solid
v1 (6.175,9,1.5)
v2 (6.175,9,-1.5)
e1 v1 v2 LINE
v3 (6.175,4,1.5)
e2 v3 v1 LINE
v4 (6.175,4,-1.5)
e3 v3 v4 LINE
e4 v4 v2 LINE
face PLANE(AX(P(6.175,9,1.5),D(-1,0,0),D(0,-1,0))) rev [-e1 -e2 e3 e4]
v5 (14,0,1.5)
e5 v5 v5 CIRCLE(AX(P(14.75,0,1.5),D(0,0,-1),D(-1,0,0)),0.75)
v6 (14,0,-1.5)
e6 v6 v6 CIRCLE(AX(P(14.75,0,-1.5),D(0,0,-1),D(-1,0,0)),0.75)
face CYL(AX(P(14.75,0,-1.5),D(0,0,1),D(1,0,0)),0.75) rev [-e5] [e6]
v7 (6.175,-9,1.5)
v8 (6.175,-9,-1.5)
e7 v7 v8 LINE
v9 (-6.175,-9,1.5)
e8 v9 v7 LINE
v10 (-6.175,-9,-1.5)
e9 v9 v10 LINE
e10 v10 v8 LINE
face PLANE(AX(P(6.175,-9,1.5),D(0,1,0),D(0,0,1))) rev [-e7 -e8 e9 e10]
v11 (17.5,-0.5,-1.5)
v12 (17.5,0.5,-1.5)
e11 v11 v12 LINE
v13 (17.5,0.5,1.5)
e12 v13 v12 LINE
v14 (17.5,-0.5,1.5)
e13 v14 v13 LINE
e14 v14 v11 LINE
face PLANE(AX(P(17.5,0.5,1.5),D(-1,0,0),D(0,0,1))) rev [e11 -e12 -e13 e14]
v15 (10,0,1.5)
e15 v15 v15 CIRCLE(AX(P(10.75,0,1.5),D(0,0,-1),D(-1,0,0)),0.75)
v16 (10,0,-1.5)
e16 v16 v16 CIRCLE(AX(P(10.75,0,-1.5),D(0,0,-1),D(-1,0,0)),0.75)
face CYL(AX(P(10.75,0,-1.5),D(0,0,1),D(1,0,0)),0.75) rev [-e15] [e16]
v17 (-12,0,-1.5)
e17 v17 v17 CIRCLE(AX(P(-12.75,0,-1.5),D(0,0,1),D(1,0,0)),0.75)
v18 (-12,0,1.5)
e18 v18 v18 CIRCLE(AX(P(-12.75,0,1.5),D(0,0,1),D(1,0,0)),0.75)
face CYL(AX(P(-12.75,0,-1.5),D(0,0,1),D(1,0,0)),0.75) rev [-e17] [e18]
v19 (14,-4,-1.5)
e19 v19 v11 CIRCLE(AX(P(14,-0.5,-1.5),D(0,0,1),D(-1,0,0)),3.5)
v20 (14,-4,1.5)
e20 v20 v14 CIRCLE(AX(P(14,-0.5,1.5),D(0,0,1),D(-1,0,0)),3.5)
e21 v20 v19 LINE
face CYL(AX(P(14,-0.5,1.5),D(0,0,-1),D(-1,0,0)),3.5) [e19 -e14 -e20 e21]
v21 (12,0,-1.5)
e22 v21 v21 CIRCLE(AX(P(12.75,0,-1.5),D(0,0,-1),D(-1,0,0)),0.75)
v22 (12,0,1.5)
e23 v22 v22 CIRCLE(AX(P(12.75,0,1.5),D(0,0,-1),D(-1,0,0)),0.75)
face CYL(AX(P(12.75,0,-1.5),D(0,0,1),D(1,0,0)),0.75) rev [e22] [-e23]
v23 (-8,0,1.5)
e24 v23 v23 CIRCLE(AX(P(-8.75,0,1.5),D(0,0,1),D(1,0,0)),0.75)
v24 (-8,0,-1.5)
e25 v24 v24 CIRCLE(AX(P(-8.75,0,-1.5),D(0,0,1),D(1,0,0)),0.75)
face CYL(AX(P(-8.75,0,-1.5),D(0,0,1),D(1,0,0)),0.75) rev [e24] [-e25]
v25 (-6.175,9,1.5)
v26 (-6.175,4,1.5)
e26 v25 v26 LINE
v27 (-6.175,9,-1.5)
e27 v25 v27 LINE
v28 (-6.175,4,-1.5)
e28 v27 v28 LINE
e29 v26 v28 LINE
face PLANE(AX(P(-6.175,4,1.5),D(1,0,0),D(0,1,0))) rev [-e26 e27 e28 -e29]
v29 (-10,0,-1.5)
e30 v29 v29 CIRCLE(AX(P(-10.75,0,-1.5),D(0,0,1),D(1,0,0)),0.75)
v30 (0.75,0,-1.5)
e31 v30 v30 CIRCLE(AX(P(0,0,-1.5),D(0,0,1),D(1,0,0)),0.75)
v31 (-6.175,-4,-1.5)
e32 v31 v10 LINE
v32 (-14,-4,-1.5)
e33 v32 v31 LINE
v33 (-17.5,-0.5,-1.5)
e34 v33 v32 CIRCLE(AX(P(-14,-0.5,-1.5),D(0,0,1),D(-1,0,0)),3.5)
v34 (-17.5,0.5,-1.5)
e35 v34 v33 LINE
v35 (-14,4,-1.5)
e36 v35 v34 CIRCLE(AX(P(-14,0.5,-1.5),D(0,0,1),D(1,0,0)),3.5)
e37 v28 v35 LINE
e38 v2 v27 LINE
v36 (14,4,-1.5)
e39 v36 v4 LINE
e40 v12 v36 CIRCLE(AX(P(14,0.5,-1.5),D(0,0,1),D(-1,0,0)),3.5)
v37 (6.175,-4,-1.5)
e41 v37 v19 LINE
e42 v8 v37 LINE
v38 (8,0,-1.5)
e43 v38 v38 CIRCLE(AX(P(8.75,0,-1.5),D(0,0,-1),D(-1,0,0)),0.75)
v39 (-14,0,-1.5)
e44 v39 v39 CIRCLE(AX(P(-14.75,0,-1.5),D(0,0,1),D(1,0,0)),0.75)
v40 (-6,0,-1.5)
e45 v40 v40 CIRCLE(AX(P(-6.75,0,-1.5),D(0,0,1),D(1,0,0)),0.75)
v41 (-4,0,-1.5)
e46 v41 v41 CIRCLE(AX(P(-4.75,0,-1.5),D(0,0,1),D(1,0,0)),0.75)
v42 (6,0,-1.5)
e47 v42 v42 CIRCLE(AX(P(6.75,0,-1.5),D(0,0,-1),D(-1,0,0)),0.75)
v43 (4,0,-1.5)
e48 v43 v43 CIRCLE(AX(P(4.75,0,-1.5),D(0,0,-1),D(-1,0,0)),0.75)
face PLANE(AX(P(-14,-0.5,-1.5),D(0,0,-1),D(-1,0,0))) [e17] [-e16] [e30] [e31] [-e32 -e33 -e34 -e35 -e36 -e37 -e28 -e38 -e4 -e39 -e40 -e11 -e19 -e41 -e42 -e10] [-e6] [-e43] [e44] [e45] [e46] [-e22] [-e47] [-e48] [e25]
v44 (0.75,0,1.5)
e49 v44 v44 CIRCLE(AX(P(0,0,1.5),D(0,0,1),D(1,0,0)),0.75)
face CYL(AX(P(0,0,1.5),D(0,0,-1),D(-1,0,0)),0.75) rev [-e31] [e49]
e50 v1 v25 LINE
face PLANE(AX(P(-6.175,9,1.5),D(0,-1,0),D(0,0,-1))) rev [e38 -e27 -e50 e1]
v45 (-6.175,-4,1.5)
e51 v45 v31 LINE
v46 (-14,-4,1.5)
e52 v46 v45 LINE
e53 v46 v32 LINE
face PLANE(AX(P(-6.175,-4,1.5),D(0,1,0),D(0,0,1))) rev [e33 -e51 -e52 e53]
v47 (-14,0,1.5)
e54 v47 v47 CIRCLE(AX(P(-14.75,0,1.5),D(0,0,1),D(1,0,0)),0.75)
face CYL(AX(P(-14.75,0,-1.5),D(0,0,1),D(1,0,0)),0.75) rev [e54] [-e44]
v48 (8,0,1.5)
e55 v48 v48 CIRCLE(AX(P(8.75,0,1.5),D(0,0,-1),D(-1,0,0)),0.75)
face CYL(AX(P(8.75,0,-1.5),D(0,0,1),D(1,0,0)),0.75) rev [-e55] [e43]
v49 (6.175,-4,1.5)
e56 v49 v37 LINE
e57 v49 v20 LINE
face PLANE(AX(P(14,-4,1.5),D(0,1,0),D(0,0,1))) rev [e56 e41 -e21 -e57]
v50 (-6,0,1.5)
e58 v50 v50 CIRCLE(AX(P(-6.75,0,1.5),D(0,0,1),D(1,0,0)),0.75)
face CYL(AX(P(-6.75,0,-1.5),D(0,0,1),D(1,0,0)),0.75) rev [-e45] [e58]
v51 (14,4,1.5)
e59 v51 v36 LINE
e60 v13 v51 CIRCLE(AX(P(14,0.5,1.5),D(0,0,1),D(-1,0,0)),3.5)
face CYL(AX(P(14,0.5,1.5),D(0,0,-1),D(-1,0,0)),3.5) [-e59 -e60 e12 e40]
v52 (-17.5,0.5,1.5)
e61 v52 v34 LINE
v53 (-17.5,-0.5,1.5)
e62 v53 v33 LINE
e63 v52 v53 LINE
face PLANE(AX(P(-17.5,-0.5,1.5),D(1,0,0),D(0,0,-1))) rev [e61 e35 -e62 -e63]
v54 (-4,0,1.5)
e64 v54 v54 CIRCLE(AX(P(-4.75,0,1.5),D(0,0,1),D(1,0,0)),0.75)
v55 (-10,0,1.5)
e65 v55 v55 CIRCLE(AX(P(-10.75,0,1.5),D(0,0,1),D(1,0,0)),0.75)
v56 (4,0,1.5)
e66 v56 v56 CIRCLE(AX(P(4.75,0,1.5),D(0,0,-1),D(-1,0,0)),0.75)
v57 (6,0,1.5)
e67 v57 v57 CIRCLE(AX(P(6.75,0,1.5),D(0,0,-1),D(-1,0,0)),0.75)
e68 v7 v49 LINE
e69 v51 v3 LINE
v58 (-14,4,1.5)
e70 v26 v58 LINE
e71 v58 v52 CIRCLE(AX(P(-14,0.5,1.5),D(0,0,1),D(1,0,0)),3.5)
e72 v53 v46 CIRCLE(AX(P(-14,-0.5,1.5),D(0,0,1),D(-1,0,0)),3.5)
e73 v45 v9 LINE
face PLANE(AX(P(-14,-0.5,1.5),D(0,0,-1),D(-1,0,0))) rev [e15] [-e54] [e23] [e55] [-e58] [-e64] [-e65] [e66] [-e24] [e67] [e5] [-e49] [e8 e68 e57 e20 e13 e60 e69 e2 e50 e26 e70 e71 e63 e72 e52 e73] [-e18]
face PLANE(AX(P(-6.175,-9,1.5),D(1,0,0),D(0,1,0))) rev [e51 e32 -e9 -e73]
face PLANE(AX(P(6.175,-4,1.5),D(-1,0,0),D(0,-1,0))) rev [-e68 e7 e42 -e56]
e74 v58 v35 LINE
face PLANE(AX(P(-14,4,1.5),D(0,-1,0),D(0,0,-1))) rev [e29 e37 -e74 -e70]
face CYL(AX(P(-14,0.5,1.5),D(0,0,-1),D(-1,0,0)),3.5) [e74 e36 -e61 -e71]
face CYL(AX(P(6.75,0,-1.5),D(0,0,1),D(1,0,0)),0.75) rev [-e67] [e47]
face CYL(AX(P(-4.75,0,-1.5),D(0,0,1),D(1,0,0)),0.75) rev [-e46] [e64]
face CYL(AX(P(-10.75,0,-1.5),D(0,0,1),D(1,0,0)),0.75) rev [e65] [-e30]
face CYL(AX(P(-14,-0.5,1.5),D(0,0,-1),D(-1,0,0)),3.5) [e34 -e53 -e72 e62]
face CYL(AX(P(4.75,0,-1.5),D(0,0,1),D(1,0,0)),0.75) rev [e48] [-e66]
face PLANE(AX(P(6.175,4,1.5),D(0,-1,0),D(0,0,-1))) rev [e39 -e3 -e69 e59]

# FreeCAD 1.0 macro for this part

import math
import FreeCAD as App
import Part
import Sketcher
from FreeCAD import Vector

doc = App.newDocument("Part")
body = doc.addObject("PartDesign::Body", "Body")

sketch1 = body.newObject("Sketcher::SketchObject", "Sketch")
sketch1.AttachmentSupport = (doc.getObject("XY_Plane"), [""])
sketch1.MapMode = "FlatFace"
sketch1.addGeometry([
    Part.LineSegment(Vector(-6.175, 4, 0), Vector(-14, 4, 0)),
    Part.ArcOfCircle(Part.Circle(Vector(-14, 0.5, 0), Vector(0, 0, 1), 3.5), math.radians(90), math.radians(180)),
    Part.LineSegment(Vector(-17.5, 0.5, 0), Vector(-17.5, -0.5, 0)),
    Part.ArcOfCircle(Part.Circle(Vector(-14, -0.5, 0), Vector(0, 0, 1), 3.5), math.radians(-180), math.radians(-90)),
    Part.LineSegment(Vector(-14, -4, 0), Vector(-6.175, -4, 0)),
    Part.LineSegment(Vector(-6.175, -4, 0), Vector(-6.175, -9, 0)),
    Part.LineSegment(Vector(-6.175, -9, 0), Vector(6.175, -9, 0)),
    Part.LineSegment(Vector(6.175, -9, 0), Vector(6.175, -4, 0)),
    Part.LineSegment(Vector(6.175, -4, 0), Vector(14, -4, 0)),
    Part.ArcOfCircle(Part.Circle(Vector(14, -0.5, 0), Vector(0, 0, 1), 3.5), math.radians(-90), math.radians(0)),
    Part.LineSegment(Vector(17.5, -0.5, 0), Vector(17.5, 0.5, 0)),
    Part.ArcOfCircle(Part.Circle(Vector(14, 0.5, 0), Vector(0, 0, 1), 3.5), math.radians(0), math.radians(90)),
    Part.LineSegment(Vector(14, 4, 0), Vector(6.175, 4, 0)),
    Part.LineSegment(Vector(6.175, 4, 0), Vector(6.175, 9, 0)),
    Part.LineSegment(Vector(6.175, 9, 0), Vector(-6.175, 9, 0)),
    Part.LineSegment(Vector(-6.175, 9, 0), Vector(-6.175, 4, 0)),
    Part.Circle(Vector(0, 0, 0), Vector(0, 0, 1), 0.75),
], False)
sketch1.addConstraint([
    Sketcher.Constraint("Tangent", 0, 2, 1, 1),
    Sketcher.Constraint("Tangent", 1, 2, 2, 1),
    Sketcher.Constraint("Tangent", 2, 2, 3, 1),
    Sketcher.Constraint("Tangent", 3, 2, 4, 1),
    Sketcher.Constraint("Coincident", 4, 2, 5, 1),
    Sketcher.Constraint("Coincident", 5, 2, 6, 1),
    Sketcher.Constraint("Coincident", 6, 2, 7, 1),
    Sketcher.Constraint("Coincident", 7, 2, 8, 1),
    Sketcher.Constraint("Tangent", 8, 2, 9, 1),
    Sketcher.Constraint("Tangent", 9, 2, 10, 1),
    Sketcher.Constraint("Tangent", 10, 2, 11, 1),
    Sketcher.Constraint("Tangent", 11, 2, 12, 1),
    Sketcher.Constraint("Coincident", 12, 2, 13, 1),
    Sketcher.Constraint("Coincident", 13, 2, 14, 1),
    Sketcher.Constraint("Coincident", 14, 2, 15, 1),
    Sketcher.Constraint("Coincident", 15, 2, 0, 1),
    Sketcher.Constraint("Horizontal", 0),
    Sketcher.Constraint("Vertical", 2),
    Sketcher.Constraint("Horizontal", 4),
    Sketcher.Constraint("Vertical", 5),
    Sketcher.Constraint("Horizontal", 6),
    Sketcher.Constraint("Vertical", 7),
    Sketcher.Constraint("Horizontal", 8),
    Sketcher.Constraint("Vertical", 10),
    Sketcher.Constraint("Horizontal", 12),
    Sketcher.Constraint("Vertical", 13),
    Sketcher.Constraint("Horizontal", 14),
    Sketcher.Constraint("Vertical", 15),
    Sketcher.Constraint("Coincident", 16, 3, -1, 1),
    Sketcher.Constraint("Equal", 1, 3),
    Sketcher.Constraint("Equal", 3, 9),
    Sketcher.Constraint("Equal", 9, 11),
    Sketcher.Constraint("Symmetric", 1, 3, 9, 3, -1, 1),
    Sketcher.Constraint("Symmetric", 4, 2, 12, 2, -1, 1),
    Sketcher.Constraint("Symmetric", 6, 2, 14, 2, -1, 1),
    Sketcher.Constraint("Symmetric", 4, 2, 7, 2, -2),
    Sketcher.Constraint("Diameter", 16, 1.5),
    Sketcher.Constraint("Radius", 1, 3.5),
    Sketcher.Constraint("DistanceY", 2, 2, 2, 1, 1.0),
    Sketcher.Constraint("DistanceY", 5, 2, 5, 1, 5.0),
    Sketcher.Constraint("DistanceX", 1, 3, -1, 1, 14.0),
    Sketcher.Constraint("DistanceX", 6, 1, 6, 2, 12.35),
])
pad1 = body.newObject("PartDesign::Pad", "Pad")
pad1.Profile = sketch1
pad1.Length = 3
pad1.Midplane = True

sketch2 = body.newObject("Sketcher::SketchObject", "Sketch001")
sketch2.AttachmentSupport = (doc.getObject("XY_Plane"), [""])
sketch2.MapMode = "FlatFace"
sketch2.AttachmentOffset = App.Placement(Vector(0, 0, 1.5), App.Rotation())
sketch2.addGeometry([
    Part.Circle(Vector(-14.75, 0, 0), Vector(0, 0, 1), 0.75),
    Part.Circle(Vector(-12.75, 0, 0), Vector(0, 0, 1), 0.75),
    Part.Circle(Vector(-10.75, 0, 0), Vector(0, 0, 1), 0.75),
    Part.Circle(Vector(-8.75, 0, 0), Vector(0, 0, 1), 0.75),
    Part.Circle(Vector(-6.75, 0, 0), Vector(0, 0, 1), 0.75),
    Part.Circle(Vector(-4.75, 0, 0), Vector(0, 0, 1), 0.75),
], False)
sketch2.addConstraint([
    Sketcher.Constraint("Equal", 0, 1),
    Sketcher.Constraint("Equal", 1, 2),
    Sketcher.Constraint("Equal", 2, 3),
    Sketcher.Constraint("Equal", 3, 4),
    Sketcher.Constraint("Equal", 4, 5),
    Sketcher.Constraint("PointOnObject", 0, 3, -1),
    Sketcher.Constraint("PointOnObject", 1, 3, -1),
    Sketcher.Constraint("PointOnObject", 2, 3, -1),
    Sketcher.Constraint("PointOnObject", 3, 3, -1),
    Sketcher.Constraint("PointOnObject", 4, 3, -1),
    Sketcher.Constraint("PointOnObject", 5, 3, -1),
    Sketcher.Constraint("Diameter", 0, 1.5),
    Sketcher.Constraint("DistanceX", 0, 3, 1, 3, 2.0),
    Sketcher.Constraint("DistanceX", 1, 3, 2, 3, 2.0),
    Sketcher.Constraint("DistanceX", 2, 3, 3, 3, 2.0),
    Sketcher.Constraint("DistanceX", 3, 3, 4, 3, 2.0),
    Sketcher.Constraint("DistanceX", 4, 3, 5, 3, 2.0),
    Sketcher.Constraint("DistanceX", 0, 3, -1, 1, 14.75),
])
pocket1 = body.newObject("PartDesign::Pocket", "Pocket")
pocket1.Profile = sketch2
pocket1.Type = "ThroughAll"
doc.recompute()

mirrored = body.newObject("PartDesign::Mirrored", "Mirrored")
mirrored.Originals = [pocket1]
mirrored.MirrorPlane = (doc.getObject("YZ_Plane"), [""])
body.Tip = mirrored

doc.recompute()
